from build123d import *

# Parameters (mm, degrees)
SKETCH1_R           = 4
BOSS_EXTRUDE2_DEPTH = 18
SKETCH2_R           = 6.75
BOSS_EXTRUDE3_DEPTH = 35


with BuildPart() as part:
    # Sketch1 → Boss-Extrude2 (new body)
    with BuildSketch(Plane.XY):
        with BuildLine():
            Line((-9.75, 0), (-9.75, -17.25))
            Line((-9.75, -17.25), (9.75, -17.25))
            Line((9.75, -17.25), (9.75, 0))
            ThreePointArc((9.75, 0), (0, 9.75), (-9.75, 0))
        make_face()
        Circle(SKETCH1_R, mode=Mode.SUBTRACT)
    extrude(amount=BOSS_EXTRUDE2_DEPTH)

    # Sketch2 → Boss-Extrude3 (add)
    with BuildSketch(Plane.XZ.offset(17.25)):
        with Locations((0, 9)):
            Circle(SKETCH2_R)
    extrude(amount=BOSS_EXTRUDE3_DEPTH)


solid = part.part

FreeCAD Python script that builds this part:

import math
import FreeCAD as App
import Part
import Sketcher
Q = App.Units.Quantity

doc = App.newDocument("Part")
params = doc.addObject("Spreadsheet::Sheet", "Params")
for row, (alias, value) in enumerate([
    ("sketch1_diameter", "8 mm"),
    ("sketch1_radius", "9.75 mm"),
    ("sketch1_height", "17.25 mm"),
    ("pad1_length", "18 mm"),
    ("sketch2_diameter", "13.5 mm"),
    ("pad2_length", "35 mm"),
], start=1):
    params.set(f"A{row}", alias)
    params.set(f"B{row}", "=" + value)
    params.setAlias(f"B{row}", alias)

body = doc.addObject("PartDesign::Body", "Body")

# Sketch on XY plane
sketch1 = doc.addObject("Sketcher::SketchObject", "Sketch")
body.addObject(sketch1)
sketch1.AttachmentSupport = (doc.XY_Plane, [""])
sketch1.MapMode = "FlatFace"
sketch1.addGeometry(Part.LineSegment(App.Vector(-9.8, 0, 0), App.Vector(-9.8, -17.2, 0)), False)
sketch1.addGeometry(Part.LineSegment(App.Vector(-9.8, -17.2, 0), App.Vector(9.8, -17.2, 0)), False)
sketch1.addGeometry(Part.LineSegment(App.Vector(9.8, -17.2, 0), App.Vector(9.8, 0, 0)), False)
sketch1.addGeometry(Part.ArcOfCircle(Part.Circle(App.Vector(0, 0, 0), App.Vector(0, 0, 1), 9.8), math.radians(0), math.radians(180)), False)
sketch1.addGeometry(Part.Circle(App.Vector(0, 0, 0), App.Vector(0, 0, 1), 4), False)
sketch1.addConstraint(Sketcher.Constraint("Coincident", 0, 2, 1, 1))
sketch1.addConstraint(Sketcher.Constraint("Coincident", 1, 2, 2, 1))
sketch1.addConstraint(Sketcher.Constraint("Tangent", 2, 2, 3, 1))
sketch1.addConstraint(Sketcher.Constraint("Tangent", 3, 2, 0, 1))
sketch1.addConstraint(Sketcher.Constraint("Vertical", 0))
sketch1.addConstraint(Sketcher.Constraint("Horizontal", 1))
sketch1.addConstraint(Sketcher.Constraint("Vertical", 2))
sketch1.addConstraint(Sketcher.Constraint("Coincident", 3, 3, -1, 1))
sketch1.addConstraint(Sketcher.Constraint("Coincident", 4, 3, -1, 1))
sketch1.addConstraint(Sketcher.Constraint("Diameter", 4, Q("8 mm")))
sketch1.addConstraint(Sketcher.Constraint("Radius", 3, Q("9.75 mm")))
sketch1.addConstraint(Sketcher.Constraint("DistanceY", 0, 2, 0, 1, Q("17.25 mm")))
sketch1.setExpression("Constraints[9]", "Params.sketch1_diameter")
sketch1.setExpression("Constraints[10]", "Params.sketch1_radius")
sketch1.setExpression("Constraints[11]", "Params.sketch1_height")
pad1 = doc.addObject("PartDesign::Pad", "Pad")
body.addObject(pad1)
pad1.Profile = sketch1
pad1.setExpression("Length", "Params.pad1_length")

# Sketch on XZ plane
sketch2 = doc.addObject("Sketcher::SketchObject", "Sketch001")
body.addObject(sketch2)
sketch2.AttachmentSupport = (doc.XZ_Plane, [""])
sketch2.MapMode = "FlatFace"
sketch2.AttachmentOffset = App.Placement(App.Vector(0, 0, 17.25), App.Rotation())
sketch2.addGeometry(Part.Circle(App.Vector(0, 9, 0), App.Vector(0, 0, 1), 7), False)
sketch2.addConstraint(Sketcher.Constraint("PointOnObject", 0, 3, -2))
sketch2.addConstraint(Sketcher.Constraint("Diameter", 0, Q("13.5 mm")))
sketch2.addConstraint(Sketcher.Constraint("DistanceY", -1, 1, 0, 3, Q("9 mm")))
sketch2.setExpression("Constraints[1]", "Params.sketch2_diameter")
pad2 = doc.addObject("PartDesign::Pad", "Pad001")
body.addObject(pad2)
pad2.Profile = sketch2
pad2.setExpression("Length", "Params.pad2_length")

doc.recompute()
